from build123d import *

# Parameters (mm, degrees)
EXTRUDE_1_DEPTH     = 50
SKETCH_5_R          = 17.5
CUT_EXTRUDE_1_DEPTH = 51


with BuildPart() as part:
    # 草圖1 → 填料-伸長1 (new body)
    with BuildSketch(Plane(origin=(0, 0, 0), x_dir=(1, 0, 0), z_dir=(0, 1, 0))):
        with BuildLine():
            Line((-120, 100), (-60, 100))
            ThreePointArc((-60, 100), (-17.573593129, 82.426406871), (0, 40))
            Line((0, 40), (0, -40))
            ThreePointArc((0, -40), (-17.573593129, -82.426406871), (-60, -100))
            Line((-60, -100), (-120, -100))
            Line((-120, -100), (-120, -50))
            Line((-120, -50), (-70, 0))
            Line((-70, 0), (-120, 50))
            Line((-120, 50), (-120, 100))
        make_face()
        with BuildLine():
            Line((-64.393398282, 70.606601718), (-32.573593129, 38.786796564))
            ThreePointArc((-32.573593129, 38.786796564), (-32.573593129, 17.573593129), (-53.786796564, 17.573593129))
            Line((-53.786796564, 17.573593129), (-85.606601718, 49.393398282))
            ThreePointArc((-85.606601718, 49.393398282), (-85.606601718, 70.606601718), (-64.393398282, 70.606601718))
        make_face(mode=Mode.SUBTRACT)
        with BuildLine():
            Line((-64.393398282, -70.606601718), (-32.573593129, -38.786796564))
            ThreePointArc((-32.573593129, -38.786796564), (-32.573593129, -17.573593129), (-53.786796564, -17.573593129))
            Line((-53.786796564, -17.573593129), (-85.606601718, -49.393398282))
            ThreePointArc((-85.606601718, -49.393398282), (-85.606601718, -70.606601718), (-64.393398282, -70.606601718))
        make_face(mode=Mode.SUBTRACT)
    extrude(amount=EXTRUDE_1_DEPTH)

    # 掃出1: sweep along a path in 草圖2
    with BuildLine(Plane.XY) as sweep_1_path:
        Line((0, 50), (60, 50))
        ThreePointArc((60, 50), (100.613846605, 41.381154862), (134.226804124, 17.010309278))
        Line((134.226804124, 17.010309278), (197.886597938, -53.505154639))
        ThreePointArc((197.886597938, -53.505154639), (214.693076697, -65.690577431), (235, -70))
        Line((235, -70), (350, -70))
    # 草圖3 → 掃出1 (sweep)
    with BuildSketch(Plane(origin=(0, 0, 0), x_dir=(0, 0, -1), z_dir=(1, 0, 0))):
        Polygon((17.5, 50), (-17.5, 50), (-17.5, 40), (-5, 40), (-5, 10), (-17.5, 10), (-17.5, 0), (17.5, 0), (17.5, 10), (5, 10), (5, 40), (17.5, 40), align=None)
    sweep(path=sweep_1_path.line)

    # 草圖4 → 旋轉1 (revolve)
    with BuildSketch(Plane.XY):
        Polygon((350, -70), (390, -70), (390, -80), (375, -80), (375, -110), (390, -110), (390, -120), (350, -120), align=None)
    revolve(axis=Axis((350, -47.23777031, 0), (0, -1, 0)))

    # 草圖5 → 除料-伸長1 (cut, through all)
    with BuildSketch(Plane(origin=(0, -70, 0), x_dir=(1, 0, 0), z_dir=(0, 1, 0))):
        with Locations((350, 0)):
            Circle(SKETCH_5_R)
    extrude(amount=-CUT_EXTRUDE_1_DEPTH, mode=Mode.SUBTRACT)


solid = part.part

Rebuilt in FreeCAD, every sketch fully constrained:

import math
import FreeCAD as App
import Part
import Sketcher

V = App.Vector


def add_polygon(sketch, points):
    """Adds a closed chain of lines whose ends are joined by coincident constraints."""
    first, n = sketch.GeometryCount, len(points)
    for a, b in zip(points, points[1:] + points[:1]):
        sketch.addGeometry(Part.LineSegment(App.Vector(*a, 0), App.Vector(*b, 0)), False)
    for i in range(n):
        sketch.addConstraint(Sketcher.Constraint("Coincident", first + i, 2, first + (i + 1) % n, 1))

doc = App.newDocument("Part")
body = doc.addObject("PartDesign::Body", "Body")

# Sketch on XZ plane
sketch1 = body.newObject("Sketcher::SketchObject", "Sketch")
sketch1.AttachmentSupport = (doc.getObject("XZ_Plane"), [""])
sketch1.MapMode = "FlatFace"
sketch1.addGeometry(Part.LineSegment(V(-60, -100, 0), V(-120, -100, 0)), False)
sketch1.addGeometry(Part.LineSegment(V(-120, -100, 0), V(-120, -50, 0)), False)
sketch1.addGeometry(Part.LineSegment(V(-120, -50, 0), V(-70, 0, 0)), False)
sketch1.addGeometry(Part.LineSegment(V(-70, 0, 0), V(-120, 50, 0)), False)
sketch1.addGeometry(Part.LineSegment(V(-120, 50, 0), V(-120, 100, 0)), False)
sketch1.addGeometry(Part.LineSegment(V(-120, 100, 0), V(-60, 100, 0)), False)
sketch1.addGeometry(Part.ArcOfCircle(Part.Circle(V(-60, 40, 0), V(0, 0, 1), 60), math.radians(0), math.radians(90)), False)
sketch1.addGeometry(Part.LineSegment(V(0, 40, 0), V(0, -40, 0)), False)
sketch1.addGeometry(Part.ArcOfCircle(Part.Circle(V(-60, -40, 0), V(0, 0, 1), 60), math.radians(-90), math.radians(0)), False)
sketch1.addGeometry(Part.ArcOfCircle(Part.Circle(V(-75, 60, 0), V(0, 0, 1), 15), math.radians(45), math.radians(225)), False)
sketch1.addGeometry(Part.LineSegment(V(-86, 49, 0), V(-54, 18, 0)), False)
sketch1.addGeometry(Part.ArcOfCircle(Part.Circle(V(-43, 28, 0), V(0, 0, 1), 15), math.radians(-135), math.radians(45)), False)
sketch1.addGeometry(Part.LineSegment(V(-33, 39, 0), V(-64, 71, 0)), False)
sketch1.addGeometry(Part.LineSegment(V(-64, -71, 0), V(-33, -39, 0)), False)
sketch1.addGeometry(Part.ArcOfCircle(Part.Circle(V(-43, -28, 0), V(0, 0, 1), 15), math.radians(-45), math.radians(135)), False)
sketch1.addGeometry(Part.LineSegment(V(-54, -18, 0), V(-86, -49, 0)), False)
sketch1.addGeometry(Part.ArcOfCircle(Part.Circle(V(-75, -60, 0), V(0, 0, 1), 15), math.radians(135), math.radians(315)), False)
sketch1.addConstraint(Sketcher.Constraint("Coincident", 0, 2, 1, 1))
sketch1.addConstraint(Sketcher.Constraint("Coincident", 1, 2, 2, 1))
sketch1.addConstraint(Sketcher.Constraint("Coincident", 2, 2, 3, 1))
sketch1.addConstraint(Sketcher.Constraint("Coincident", 3, 2, 4, 1))
sketch1.addConstraint(Sketcher.Constraint("Coincident", 4, 2, 5, 1))
sketch1.addConstraint(Sketcher.Constraint("Tangent", 5, 2, 6, 2))
sketch1.addConstraint(Sketcher.Constraint("Tangent", 6, 1, 7, 1))
sketch1.addConstraint(Sketcher.Constraint("Tangent", 7, 2, 8, 2))
sketch1.addConstraint(Sketcher.Constraint("Tangent", 8, 1, 0, 1))
sketch1.addConstraint(Sketcher.Constraint("Tangent", 9, 2, 10, 1))
sketch1.addConstraint(Sketcher.Constraint("Tangent", 10, 2, 11, 1))
sketch1.addConstraint(Sketcher.Constraint("Tangent", 11, 2, 12, 1))
sketch1.addConstraint(Sketcher.Constraint("Tangent", 12, 2, 9, 1))
sketch1.addConstraint(Sketcher.Constraint("Tangent", 13, 2, 14, 1))
sketch1.addConstraint(Sketcher.Constraint("Tangent", 14, 2, 15, 1))
sketch1.addConstraint(Sketcher.Constraint("Tangent", 15, 2, 16, 1))
sketch1.addConstraint(Sketcher.Constraint("Tangent", 16, 2, 13, 1))
sketch1.addConstraint(Sketcher.Constraint("Horizontal", 0))
sketch1.addConstraint(Sketcher.Constraint("Vertical", 1))
sketch1.addConstraint(Sketcher.Constraint("Vertical", 4))
sketch1.addConstraint(Sketcher.Constraint("Horizontal", 5))
sketch1.addConstraint(Sketcher.Constraint("Vertical", 7))
sketch1.addConstraint(Sketcher.Constraint("Equal", 6, 8))
sketch1.addConstraint(Sketcher.Constraint("Equal", 9, 11))
sketch1.addConstraint(Sketcher.Constraint("Equal", 11, 14))
sketch1.addConstraint(Sketcher.Constraint("Equal", 14, 16))
sketch1.addConstraint(Sketcher.Constraint("Symmetric", 6, 1, 7, 2, -1, 1))
sketch1.addConstraint(Sketcher.Constraint("Symmetric", 11, 3, 14, 3, -1))
sketch1.addConstraint(Sketcher.Constraint("Symmetric", 9, 3, 16, 3, -1))
sketch1.addConstraint(Sketcher.Constraint("Symmetric", 1, 2, 3, 2, -1))
sketch1.addConstraint(Sketcher.Constraint("PointOnObject", 2, 2, -1))
sketch1.addConstraint(Sketcher.Constraint("Perpendicular", 2, 3))
sketch1.addConstraint(Sketcher.Constraint("Parallel", 3, 10))
sketch1.addConstraint(Sketcher.Constraint("Radius", 6, 60.0))
sketch1.addConstraint(Sketcher.Constraint("Radius", 9, 15.0))
sketch1.addConstraint(Sketcher.Constraint("DistanceX", 0, 2, 0, 1, 60.0))
sketch1.addConstraint(Sketcher.Constraint("DistanceY", 1, 1, 1, 2, 50.0))
sketch1.addConstraint(Sketcher.Constraint("DistanceY", 7, 2, 7, 1, 80.0))
sketch1.addConstraint(Sketcher.Constraint("Distance", 10, 45.0))
sketch1.addConstraint(Sketcher.Constraint("DistanceX", 9, 3, -1, 1, 75.0))
sketch1.addConstraint(Sketcher.Constraint("DistanceY", -1, 1, 9, 3, 60.0))
pad1 = body.newObject("PartDesign::Pad", "Pad")
pad1.Profile = sketch1
pad1.Length = 50
pad1.Reversed = True

# Sketch on YZ plane
sketch2 = body.newObject("Sketcher::SketchObject", "Sketch001")
sketch2.AttachmentSupport = (doc.getObject("YZ_Plane"), [""])
sketch2.MapMode = "FlatFace"
add_polygon(sketch2, [(50, -18), (50, 18), (40, 18), (40, 5), (10, 5), (10, 18), (0, 18), (0, -18), (10, -18), (10, -5), (40, -5), (40, -18)])  # lines 0-11
sketch2.addConstraint(Sketcher.Constraint("Vertical", 0))
sketch2.addConstraint(Sketcher.Constraint("Horizontal", 1))
sketch2.addConstraint(Sketcher.Constraint("Vertical", 2))
sketch2.addConstraint(Sketcher.Constraint("Horizontal", 3))
sketch2.addConstraint(Sketcher.Constraint("Vertical", 4))
sketch2.addConstraint(Sketcher.Constraint("Horizontal", 5))
sketch2.addConstraint(Sketcher.Constraint("Vertical", 6))
sketch2.addConstraint(Sketcher.Constraint("Horizontal", 7))
sketch2.addConstraint(Sketcher.Constraint("Vertical", 8))
sketch2.addConstraint(Sketcher.Constraint("Horizontal", 9))
sketch2.addConstraint(Sketcher.Constraint("Vertical", 10))
sketch2.addConstraint(Sketcher.Constraint("Horizontal", 11))
sketch2.addConstraint(Sketcher.Constraint("Symmetric", 5, 2, 6, 2, -1, 1))
sketch2.addConstraint(Sketcher.Constraint("Symmetric", 3, 2, 8, 2, -1))
sketch2.addConstraint(Sketcher.Constraint("Symmetric", 1, 2, 10, 2, -1))
sketch2.addConstraint(Sketcher.Constraint("Horizontal", 1, 2, 4, 2))
sketch2.addConstraint(Sketcher.Constraint("Equal", 1, 5))
sketch2.addConstraint(Sketcher.Constraint("DistanceX", 1, 2, 1, 1, 10.0))
sketch2.addConstraint(Sketcher.Constraint("DistanceX", 3, 2, 3, 1, 30.0))
sketch2.addConstraint(Sketcher.Constraint("DistanceY", 0, 1, 0, 2, 35.0))
sketch2.addConstraint(Sketcher.Constraint("DistanceY", 2, 2, 2, 1, 12.5))

# Sketch on XY plane
sketch3 = body.newObject("Sketcher::SketchObject", "Sketch002")
sketch3.AttachmentSupport = (doc.getObject("XY_Plane"), [""])
sketch3.MapMode = "FlatFace"
sketch3.addGeometry(Part.LineSegment(V(0, 50, 0), V(60, 50, 0)), False)
sketch3.addGeometry(Part.ArcOfCircle(Part.Circle(V(60, -50, 0), V(0, 0, 1), 100), math.radians(42), math.radians(90)), False)
sketch3.addGeometry(Part.LineSegment(V(134, 17, 0), V(198, -54, 0)), False)
sketch3.addGeometry(Part.ArcOfCircle(Part.Circle(V(235, -20, 0), V(0, 0, 1), 50), math.radians(-138), math.radians(-90)), False)
sketch3.addGeometry(Part.LineSegment(V(235, -70, 0), V(350, -70, 0)), False)
sketch3.addConstraint(Sketcher.Constraint("Tangent", 0, 2, 1, 2))
sketch3.addConstraint(Sketcher.Constraint("Tangent", 1, 1, 2, 1))
sketch3.addConstraint(Sketcher.Constraint("Tangent", 2, 2, 3, 1))
sketch3.addConstraint(Sketcher.Constraint("Tangent", 3, 2, 4, 1))
sketch3.addConstraint(Sketcher.Constraint("Horizontal", 0))
sketch3.addConstraint(Sketcher.Constraint("Horizontal", 4))
sketch3.addConstraint(Sketcher.Constraint("PointOnObject", 0, 1, -2))
sketch3.addConstraint(Sketcher.Constraint("Radius", 1, 100.0))
sketch3.addConstraint(Sketcher.Constraint("Radius", 3, 50.0))
sketch3.addConstraint(Sketcher.Constraint("DistanceX", 0, 1, 0, 2, 60.0))
sketch3.addConstraint(Sketcher.Constraint("DistanceX", 4, 1, 4, 2, 115.0))
sketch3.addConstraint(Sketcher.Constraint("Distance", 2, 95.0))
sketch3.addConstraint(Sketcher.Constraint("DistanceY", 1, 3, -1, 1, 50.0))
sketch3.addConstraint(Sketcher.Constraint("DistanceX", -1, 1, 3, 3, 235.0))
doc.recompute()

additivepipe = body.newObject("PartDesign::AdditivePipe", "AdditivePipe")
additivepipe.Profile = sketch2
additivepipe.Spine = (sketch3, ["Edge1", "Edge2", "Edge3", "Edge4", "Edge5"])

# Sketch on XY plane
sketch4 = body.newObject("Sketcher::SketchObject", "Sketch003")
sketch4.AttachmentSupport = (doc.getObject("XY_Plane"), [""])
sketch4.MapMode = "FlatFace"
add_polygon(sketch4, [(390, -70), (350, -70), (350, -120), (390, -120), (390, -110), (375, -110), (375, -80), (390, -80)])  # lines 0-7
sketch4.addGeometry(Part.LineSegment(V(350, -70, 0), V(350, -120, 0)), True)  # axis
sketch4.addConstraint(Sketcher.Constraint("Horizontal", 0))
sketch4.addConstraint(Sketcher.Constraint("Vertical", 1))
sketch4.addConstraint(Sketcher.Constraint("Horizontal", 2))
sketch4.addConstraint(Sketcher.Constraint("Vertical", 3))
sketch4.addConstraint(Sketcher.Constraint("Horizontal", 4))
sketch4.addConstraint(Sketcher.Constraint("Vertical", 5))
sketch4.addConstraint(Sketcher.Constraint("Horizontal", 6))
sketch4.addConstraint(Sketcher.Constraint("Vertical", 7))
sketch4.addConstraint(Sketcher.Constraint("Vertical", 8))
sketch4.addConstraint(Sketcher.Constraint("Coincident", 8, 1, 0, 2))
sketch4.addConstraint(Sketcher.Constraint("Horizontal", 2, 2, 8, 2))
sketch4.addConstraint(Sketcher.Constraint("Vertical", 3, 2, 6, 2))
sketch4.addConstraint(Sketcher.Constraint("Equal", 3, 7))
sketch4.addConstraint(Sketcher.Constraint("DistanceX", 0, 2, 0, 1, 40.0))
sketch4.addConstraint(Sketcher.Constraint("DistanceX", 4, 2, 4, 1, 15.0))
sketch4.addConstraint(Sketcher.Constraint("DistanceY", 1, 2, 1, 1, 50.0))
sketch4.addConstraint(Sketcher.Constraint("DistanceY", 3, 1, 3, 2, 10.0))
sketch4.addConstraint(Sketcher.Constraint("DistanceX", -1, 1, 0, 2, 350.0))
sketch4.addConstraint(Sketcher.Constraint("DistanceY", 0, 2, -1, 1, 70.0))
revolution = body.newObject("PartDesign::Revolution", "Revolution")
revolution.Profile = sketch4
revolution.ReferenceAxis = (sketch4, ["Axis0"])
revolution.Angle = 360

# Sketch on XZ plane
sketch5 = body.newObject("Sketcher::SketchObject", "Sketch004")
sketch5.AttachmentSupport = (doc.getObject("XZ_Plane"), [""])
sketch5.MapMode = "FlatFace"
sketch5.AttachmentOffset = App.Placement(V(0, 0, 70), App.Rotation())
sketch5.addGeometry(Part.Circle(V(350, 0, 0), V(0, 0, 1), 18), False)
sketch5.addConstraint(Sketcher.Constraint("PointOnObject", 0, 3, -1))
sketch5.addConstraint(Sketcher.Constraint("Diameter", 0, 35.0))
sketch5.addConstraint(Sketcher.Constraint("DistanceX", -1, 1, 0, 3, 350.0))
pocket1 = body.newObject("PartDesign::Pocket", "Pocket")
pocket1.Profile = sketch5
pocket1.Type = "ThroughAll"
pocket1.Reversed = True

doc.recompute()
